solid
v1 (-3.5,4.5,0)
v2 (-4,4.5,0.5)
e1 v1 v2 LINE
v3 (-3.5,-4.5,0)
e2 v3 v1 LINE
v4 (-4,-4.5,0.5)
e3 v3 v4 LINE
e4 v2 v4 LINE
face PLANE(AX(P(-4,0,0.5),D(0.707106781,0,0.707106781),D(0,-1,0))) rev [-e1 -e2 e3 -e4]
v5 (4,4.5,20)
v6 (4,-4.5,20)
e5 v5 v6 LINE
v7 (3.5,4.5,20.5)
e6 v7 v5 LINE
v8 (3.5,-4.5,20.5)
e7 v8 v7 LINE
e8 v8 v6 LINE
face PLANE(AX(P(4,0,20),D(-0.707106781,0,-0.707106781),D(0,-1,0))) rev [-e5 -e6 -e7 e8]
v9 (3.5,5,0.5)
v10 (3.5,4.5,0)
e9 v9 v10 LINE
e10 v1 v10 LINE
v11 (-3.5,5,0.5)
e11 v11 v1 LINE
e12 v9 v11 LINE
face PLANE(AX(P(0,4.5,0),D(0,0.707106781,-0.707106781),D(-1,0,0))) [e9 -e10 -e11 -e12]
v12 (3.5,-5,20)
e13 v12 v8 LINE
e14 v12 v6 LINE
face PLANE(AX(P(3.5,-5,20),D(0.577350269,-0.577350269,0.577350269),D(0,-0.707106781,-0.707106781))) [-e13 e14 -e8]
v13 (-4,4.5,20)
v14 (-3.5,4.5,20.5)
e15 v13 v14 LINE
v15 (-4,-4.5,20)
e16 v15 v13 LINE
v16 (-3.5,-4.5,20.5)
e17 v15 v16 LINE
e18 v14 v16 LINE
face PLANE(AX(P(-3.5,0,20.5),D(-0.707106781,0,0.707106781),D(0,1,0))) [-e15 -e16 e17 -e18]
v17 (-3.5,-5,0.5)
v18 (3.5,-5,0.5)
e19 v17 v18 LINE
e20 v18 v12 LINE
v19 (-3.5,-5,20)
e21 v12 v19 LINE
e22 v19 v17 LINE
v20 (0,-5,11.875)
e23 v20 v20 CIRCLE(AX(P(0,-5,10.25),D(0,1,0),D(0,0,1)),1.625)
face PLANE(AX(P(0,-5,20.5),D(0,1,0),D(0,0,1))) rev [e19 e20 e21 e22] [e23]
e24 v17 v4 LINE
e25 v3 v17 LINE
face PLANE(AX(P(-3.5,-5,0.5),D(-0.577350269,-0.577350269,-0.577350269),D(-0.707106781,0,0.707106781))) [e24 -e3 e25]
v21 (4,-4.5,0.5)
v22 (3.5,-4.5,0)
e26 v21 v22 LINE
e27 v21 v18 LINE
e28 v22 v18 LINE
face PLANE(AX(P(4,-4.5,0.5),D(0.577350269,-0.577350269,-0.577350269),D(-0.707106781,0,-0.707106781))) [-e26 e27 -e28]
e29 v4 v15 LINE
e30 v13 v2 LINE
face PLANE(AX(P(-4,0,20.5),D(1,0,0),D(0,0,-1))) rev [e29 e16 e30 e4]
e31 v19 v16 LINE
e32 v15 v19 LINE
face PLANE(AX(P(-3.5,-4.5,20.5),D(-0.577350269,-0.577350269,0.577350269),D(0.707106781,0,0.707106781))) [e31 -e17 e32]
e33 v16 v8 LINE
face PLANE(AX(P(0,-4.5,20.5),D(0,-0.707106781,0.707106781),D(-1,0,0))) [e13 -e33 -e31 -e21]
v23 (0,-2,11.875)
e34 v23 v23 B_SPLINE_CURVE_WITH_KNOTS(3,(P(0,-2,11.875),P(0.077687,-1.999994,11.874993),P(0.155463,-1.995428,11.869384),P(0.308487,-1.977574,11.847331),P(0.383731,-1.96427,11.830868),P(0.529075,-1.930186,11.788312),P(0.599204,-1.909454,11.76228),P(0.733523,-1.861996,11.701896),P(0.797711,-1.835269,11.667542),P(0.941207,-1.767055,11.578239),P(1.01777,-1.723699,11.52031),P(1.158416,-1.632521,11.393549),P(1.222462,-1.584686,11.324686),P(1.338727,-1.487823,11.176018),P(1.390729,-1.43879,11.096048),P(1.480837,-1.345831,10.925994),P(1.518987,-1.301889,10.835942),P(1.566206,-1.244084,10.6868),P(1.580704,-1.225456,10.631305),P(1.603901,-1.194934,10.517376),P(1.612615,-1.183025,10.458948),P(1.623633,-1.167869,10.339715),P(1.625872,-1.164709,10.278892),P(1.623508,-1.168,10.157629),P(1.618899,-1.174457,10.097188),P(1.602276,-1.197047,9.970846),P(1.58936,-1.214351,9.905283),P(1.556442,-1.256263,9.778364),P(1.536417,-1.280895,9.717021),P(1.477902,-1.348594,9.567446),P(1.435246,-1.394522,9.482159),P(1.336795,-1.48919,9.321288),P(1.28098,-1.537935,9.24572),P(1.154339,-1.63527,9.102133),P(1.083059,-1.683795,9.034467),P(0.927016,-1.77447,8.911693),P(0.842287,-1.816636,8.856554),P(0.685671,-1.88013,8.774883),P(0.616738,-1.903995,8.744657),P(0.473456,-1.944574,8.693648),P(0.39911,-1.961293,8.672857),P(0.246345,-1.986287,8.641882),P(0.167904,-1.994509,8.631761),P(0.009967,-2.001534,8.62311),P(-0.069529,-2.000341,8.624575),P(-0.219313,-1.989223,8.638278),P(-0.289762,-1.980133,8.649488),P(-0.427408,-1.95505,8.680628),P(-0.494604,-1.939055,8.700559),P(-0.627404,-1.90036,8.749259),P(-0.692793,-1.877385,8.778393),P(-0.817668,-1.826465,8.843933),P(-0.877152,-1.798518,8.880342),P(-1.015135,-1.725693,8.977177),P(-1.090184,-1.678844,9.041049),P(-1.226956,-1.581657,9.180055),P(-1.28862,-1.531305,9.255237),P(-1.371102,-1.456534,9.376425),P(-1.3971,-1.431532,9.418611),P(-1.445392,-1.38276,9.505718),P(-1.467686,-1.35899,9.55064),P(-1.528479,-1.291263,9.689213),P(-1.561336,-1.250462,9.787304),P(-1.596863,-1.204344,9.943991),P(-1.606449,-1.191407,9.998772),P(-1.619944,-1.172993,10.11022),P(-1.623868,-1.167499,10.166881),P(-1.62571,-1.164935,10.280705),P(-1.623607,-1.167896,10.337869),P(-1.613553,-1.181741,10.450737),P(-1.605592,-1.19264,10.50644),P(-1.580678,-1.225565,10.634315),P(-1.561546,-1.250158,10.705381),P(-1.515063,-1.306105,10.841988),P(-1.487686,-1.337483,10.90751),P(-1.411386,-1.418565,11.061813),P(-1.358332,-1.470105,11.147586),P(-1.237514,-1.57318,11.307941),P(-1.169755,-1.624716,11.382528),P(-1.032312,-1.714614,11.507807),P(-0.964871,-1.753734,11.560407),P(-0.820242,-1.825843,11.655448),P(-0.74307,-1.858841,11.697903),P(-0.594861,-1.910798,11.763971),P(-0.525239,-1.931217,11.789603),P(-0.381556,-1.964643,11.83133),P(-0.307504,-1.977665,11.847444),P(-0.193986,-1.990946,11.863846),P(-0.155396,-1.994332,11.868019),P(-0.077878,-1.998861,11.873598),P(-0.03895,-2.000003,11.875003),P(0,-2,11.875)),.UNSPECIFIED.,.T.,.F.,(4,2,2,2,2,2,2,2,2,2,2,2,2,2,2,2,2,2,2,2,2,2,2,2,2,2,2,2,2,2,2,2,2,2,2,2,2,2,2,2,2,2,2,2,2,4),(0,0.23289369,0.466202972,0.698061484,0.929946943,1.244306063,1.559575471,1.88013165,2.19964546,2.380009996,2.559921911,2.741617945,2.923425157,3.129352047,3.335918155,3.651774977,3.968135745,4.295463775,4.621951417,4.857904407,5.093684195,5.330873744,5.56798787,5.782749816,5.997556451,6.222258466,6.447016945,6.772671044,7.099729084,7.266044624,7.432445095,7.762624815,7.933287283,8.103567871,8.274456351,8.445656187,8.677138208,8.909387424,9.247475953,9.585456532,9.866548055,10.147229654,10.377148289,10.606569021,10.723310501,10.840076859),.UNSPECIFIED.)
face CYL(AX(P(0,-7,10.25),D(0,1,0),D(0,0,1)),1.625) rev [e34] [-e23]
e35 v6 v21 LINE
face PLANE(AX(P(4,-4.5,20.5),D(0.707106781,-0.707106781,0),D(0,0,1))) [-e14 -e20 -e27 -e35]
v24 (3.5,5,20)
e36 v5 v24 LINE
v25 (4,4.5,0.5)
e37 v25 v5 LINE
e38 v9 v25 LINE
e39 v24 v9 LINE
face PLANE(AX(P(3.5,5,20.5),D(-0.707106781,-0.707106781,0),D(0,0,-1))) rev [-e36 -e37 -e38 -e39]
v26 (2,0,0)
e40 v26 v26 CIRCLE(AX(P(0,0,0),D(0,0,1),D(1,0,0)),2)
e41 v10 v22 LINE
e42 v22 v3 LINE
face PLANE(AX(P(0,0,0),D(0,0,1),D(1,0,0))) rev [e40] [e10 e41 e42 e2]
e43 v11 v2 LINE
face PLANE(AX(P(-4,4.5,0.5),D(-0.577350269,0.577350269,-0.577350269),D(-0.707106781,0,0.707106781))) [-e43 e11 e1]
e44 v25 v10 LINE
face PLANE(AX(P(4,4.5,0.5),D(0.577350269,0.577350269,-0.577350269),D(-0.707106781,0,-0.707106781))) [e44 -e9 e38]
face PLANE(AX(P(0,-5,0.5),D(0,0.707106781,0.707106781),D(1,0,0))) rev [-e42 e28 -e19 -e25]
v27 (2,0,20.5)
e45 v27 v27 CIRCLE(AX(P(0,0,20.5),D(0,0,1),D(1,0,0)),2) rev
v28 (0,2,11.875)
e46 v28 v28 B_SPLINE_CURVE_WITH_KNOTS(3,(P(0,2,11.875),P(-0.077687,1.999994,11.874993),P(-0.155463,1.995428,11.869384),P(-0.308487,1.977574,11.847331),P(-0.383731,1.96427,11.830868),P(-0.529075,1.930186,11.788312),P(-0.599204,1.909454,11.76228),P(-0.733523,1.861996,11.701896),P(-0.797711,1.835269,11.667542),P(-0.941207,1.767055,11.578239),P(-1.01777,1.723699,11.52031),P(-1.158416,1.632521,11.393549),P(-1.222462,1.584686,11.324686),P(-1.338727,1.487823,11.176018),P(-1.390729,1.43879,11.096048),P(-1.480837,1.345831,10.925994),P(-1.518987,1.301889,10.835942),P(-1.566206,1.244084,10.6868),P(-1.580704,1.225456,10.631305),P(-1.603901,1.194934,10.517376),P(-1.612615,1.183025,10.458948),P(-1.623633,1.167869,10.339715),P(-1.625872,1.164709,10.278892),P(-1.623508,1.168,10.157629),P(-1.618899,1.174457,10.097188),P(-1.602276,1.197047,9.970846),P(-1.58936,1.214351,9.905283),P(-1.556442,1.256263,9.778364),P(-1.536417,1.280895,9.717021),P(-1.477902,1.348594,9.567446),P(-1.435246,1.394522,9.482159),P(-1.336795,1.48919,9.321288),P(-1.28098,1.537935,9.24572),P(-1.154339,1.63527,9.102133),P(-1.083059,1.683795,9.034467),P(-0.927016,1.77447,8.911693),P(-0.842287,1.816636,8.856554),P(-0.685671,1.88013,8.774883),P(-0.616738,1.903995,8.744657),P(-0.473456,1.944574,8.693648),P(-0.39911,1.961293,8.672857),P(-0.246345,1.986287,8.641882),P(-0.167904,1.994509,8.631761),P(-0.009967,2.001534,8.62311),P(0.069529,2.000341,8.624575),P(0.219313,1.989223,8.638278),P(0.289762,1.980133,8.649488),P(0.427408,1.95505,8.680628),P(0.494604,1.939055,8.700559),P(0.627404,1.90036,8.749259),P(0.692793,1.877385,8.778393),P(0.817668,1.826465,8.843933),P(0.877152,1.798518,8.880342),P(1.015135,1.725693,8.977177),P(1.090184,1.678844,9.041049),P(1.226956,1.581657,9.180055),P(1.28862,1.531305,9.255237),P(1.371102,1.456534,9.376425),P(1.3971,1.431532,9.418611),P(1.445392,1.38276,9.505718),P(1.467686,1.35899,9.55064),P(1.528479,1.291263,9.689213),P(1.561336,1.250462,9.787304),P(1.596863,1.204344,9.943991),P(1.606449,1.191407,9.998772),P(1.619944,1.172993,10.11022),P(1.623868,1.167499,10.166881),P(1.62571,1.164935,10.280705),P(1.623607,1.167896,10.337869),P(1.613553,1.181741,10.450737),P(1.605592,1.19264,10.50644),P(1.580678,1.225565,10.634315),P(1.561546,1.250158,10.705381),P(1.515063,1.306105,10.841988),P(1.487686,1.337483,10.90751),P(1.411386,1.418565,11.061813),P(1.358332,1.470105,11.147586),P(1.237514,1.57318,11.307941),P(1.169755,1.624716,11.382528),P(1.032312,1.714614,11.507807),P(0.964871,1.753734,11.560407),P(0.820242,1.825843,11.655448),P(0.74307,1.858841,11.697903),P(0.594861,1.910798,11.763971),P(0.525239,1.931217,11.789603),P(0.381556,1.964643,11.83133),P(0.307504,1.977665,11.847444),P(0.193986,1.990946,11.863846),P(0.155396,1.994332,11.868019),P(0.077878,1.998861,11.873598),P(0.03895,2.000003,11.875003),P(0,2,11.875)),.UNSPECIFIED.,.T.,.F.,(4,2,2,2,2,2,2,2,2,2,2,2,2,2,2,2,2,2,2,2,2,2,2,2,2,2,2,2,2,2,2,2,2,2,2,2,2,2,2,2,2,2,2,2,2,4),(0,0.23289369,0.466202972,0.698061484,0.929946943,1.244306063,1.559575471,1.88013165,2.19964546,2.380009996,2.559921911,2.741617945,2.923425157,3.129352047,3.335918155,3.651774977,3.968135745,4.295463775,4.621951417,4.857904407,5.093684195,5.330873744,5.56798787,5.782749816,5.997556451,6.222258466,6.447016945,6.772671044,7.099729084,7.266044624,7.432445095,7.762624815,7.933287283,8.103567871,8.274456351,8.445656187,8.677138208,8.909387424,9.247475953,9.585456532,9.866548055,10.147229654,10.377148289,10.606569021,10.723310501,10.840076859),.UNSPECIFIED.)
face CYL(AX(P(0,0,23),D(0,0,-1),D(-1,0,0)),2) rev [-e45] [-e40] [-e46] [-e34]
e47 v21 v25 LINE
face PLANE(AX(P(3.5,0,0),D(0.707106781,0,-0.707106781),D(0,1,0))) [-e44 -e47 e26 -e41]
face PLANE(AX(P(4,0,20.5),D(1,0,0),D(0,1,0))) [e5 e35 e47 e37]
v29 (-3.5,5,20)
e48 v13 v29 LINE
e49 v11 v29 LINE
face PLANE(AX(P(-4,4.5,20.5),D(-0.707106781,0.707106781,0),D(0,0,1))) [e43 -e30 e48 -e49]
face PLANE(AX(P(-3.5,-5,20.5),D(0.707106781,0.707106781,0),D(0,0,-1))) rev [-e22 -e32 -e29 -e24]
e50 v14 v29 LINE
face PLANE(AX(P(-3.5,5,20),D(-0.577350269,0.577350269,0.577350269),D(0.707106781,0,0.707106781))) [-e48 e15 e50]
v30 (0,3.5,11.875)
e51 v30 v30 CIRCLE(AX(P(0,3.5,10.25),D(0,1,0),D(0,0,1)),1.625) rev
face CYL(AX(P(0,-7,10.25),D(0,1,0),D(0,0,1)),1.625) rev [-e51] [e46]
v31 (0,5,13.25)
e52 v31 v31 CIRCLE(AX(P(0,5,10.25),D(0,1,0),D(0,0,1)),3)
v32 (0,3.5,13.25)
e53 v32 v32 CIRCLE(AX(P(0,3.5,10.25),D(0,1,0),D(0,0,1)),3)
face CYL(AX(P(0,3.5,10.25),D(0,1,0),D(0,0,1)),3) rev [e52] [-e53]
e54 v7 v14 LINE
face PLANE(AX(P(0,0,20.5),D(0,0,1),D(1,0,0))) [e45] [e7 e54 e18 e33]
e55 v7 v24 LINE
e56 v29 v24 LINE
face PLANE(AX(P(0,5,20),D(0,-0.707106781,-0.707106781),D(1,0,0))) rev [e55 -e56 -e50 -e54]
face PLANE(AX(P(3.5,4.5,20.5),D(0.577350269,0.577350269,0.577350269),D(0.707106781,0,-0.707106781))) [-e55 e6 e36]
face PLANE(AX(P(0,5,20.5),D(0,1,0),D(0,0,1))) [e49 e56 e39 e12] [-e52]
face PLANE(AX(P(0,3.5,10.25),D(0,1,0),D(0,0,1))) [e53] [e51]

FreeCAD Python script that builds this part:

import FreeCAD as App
import Part
import Sketcher

V = App.Vector
Q = App.Units.Quantity


def edges_at(feature, points):
    """Names of the edges that pass closest to the given points."""
    edges = feature.Shape.Edges
    near = lambda p: min(range(len(edges)), key=lambda i: edges[i].distToShape(Part.Vertex(*p))[0])
    return sorted({f"Edge{near(p) + 1}" for p in points})

doc = App.newDocument("Part")
body = doc.addObject("PartDesign::Body", "Body")

# Sketch on XY plane
sketch1 = body.newObject("Sketcher::SketchObject", "Sketch")
sketch1.AttachmentSupport = (doc.getObject("XY_Plane"), [""])
sketch1.MapMode = "FlatFace"
sketch1.addGeometry(Part.LineSegment(V(-4, 5, 0), V(-4, -5, 0)), False)
sketch1.addGeometry(Part.LineSegment(V(-4, -5, 0), V(4, -5, 0)), False)
sketch1.addGeometry(Part.LineSegment(V(4, -5, 0), V(4, 5, 0)), False)
sketch1.addGeometry(Part.LineSegment(V(4, 5, 0), V(-4, 5, 0)), False)
sketch1.addConstraint(Sketcher.Constraint("Coincident", 0, 2, 1, 1))
sketch1.addConstraint(Sketcher.Constraint("Coincident", 1, 2, 2, 1))
sketch1.addConstraint(Sketcher.Constraint("Coincident", 2, 2, 3, 1))
sketch1.addConstraint(Sketcher.Constraint("Coincident", 3, 2, 0, 1))
sketch1.addConstraint(Sketcher.Constraint("Vertical", 0))
sketch1.addConstraint(Sketcher.Constraint("Horizontal", 1))
sketch1.addConstraint(Sketcher.Constraint("Vertical", 2))
sketch1.addConstraint(Sketcher.Constraint("Horizontal", 3))
sketch1.addConstraint(Sketcher.Constraint("Symmetric", 0, 2, 2, 2, -1, 1))
sketch1.addConstraint(Sketcher.Constraint("DistanceX", 1, 1, 1, 2, Q("8 mm")))
sketch1.addConstraint(Sketcher.Constraint("DistanceY", 0, 2, 0, 1, Q("10 mm")))
pad1 = body.newObject("PartDesign::Pad", "Pad")
pad1.Profile = sketch1
pad1.Length = 20.5

# Sketch on XY plane
sketch2 = body.newObject("Sketcher::SketchObject", "Sketch001")
sketch2.AttachmentSupport = (doc.getObject("XY_Plane"), [""])
sketch2.MapMode = "FlatFace"
sketch2.addGeometry(Part.Circle(V(0, 0, 0), V(0, 0, 1), 2), False)
sketch2.addConstraint(Sketcher.Constraint("Coincident", 0, 3, -1, 1))
sketch2.addConstraint(Sketcher.Constraint("Diameter", 0, Q("4 mm")))
pocket1 = body.newObject("PartDesign::Pocket", "Pocket")
pocket1.Profile = sketch2
pocket1.Length = 23
pocket1.Reversed = True

# Sketch on XZ plane
sketch3 = body.newObject("Sketcher::SketchObject", "Sketch002")
sketch3.AttachmentSupport = (doc.getObject("XZ_Plane"), [""])
sketch3.MapMode = "FlatFace"
sketch3.AttachmentOffset = App.Placement(V(0, 0, -5), App.Rotation())
sketch3.addGeometry(Part.Circle(V(0, 10.2, 0), V(0, 0, 1), 1.6), False)
sketch3.addConstraint(Sketcher.Constraint("PointOnObject", 0, 3, -2))
sketch3.addConstraint(Sketcher.Constraint("Diameter", 0, Q("3.25 mm")))
sketch3.addConstraint(Sketcher.Constraint("DistanceY", -1, 1, 0, 3, Q("10.25 mm")))
pocket2 = body.newObject("PartDesign::Pocket", "Pocket001")
pocket2.Profile = sketch3
pocket2.Length = 12
pocket2.Reversed = True
doc.recompute()

chamfer = body.newObject("PartDesign::Chamfer", "Chamfer")
chamfer.Base = (pocket2, edges_at(pocket2, [
    (0, 5, 20.5),
    (-4, 0, 20.5),
    (0, -5, 20.5),
    (4, 0, 20.5),
    (0, -5, 0),
    (-4, 0, 0),
    (0, 5, 0),
    (4, 0, 0),
    (4, -5, 10.25),
    (-4, -5, 10.25),
    (-4, 5, 10.25),
    (4, 5, 10.25),
]))
chamfer.Size = 0.5

# Sketch on XZ plane
sketch4 = body.newObject("Sketcher::SketchObject", "Sketch003")
sketch4.AttachmentSupport = (doc.getObject("XZ_Plane"), [""])
sketch4.MapMode = "FlatFace"
sketch4.AttachmentOffset = App.Placement(V(0, 0, -5), App.Rotation())
sketch4.addGeometry(Part.Circle(V(0, 10.2, 0), V(0, 0, 1), 3), False)
sketch4.addConstraint(Sketcher.Constraint("PointOnObject", 0, 3, -2))
sketch4.addConstraint(Sketcher.Constraint("Diameter", 0, Q("6 mm")))
sketch4.addConstraint(Sketcher.Constraint("DistanceY", -1, 1, 0, 3, Q("10.25 mm")))
pocket3 = body.newObject("PartDesign::Pocket", "Pocket002")
pocket3.Profile = sketch4
pocket3.Length = 1.5
pocket3.Reversed = True

doc.recompute()
